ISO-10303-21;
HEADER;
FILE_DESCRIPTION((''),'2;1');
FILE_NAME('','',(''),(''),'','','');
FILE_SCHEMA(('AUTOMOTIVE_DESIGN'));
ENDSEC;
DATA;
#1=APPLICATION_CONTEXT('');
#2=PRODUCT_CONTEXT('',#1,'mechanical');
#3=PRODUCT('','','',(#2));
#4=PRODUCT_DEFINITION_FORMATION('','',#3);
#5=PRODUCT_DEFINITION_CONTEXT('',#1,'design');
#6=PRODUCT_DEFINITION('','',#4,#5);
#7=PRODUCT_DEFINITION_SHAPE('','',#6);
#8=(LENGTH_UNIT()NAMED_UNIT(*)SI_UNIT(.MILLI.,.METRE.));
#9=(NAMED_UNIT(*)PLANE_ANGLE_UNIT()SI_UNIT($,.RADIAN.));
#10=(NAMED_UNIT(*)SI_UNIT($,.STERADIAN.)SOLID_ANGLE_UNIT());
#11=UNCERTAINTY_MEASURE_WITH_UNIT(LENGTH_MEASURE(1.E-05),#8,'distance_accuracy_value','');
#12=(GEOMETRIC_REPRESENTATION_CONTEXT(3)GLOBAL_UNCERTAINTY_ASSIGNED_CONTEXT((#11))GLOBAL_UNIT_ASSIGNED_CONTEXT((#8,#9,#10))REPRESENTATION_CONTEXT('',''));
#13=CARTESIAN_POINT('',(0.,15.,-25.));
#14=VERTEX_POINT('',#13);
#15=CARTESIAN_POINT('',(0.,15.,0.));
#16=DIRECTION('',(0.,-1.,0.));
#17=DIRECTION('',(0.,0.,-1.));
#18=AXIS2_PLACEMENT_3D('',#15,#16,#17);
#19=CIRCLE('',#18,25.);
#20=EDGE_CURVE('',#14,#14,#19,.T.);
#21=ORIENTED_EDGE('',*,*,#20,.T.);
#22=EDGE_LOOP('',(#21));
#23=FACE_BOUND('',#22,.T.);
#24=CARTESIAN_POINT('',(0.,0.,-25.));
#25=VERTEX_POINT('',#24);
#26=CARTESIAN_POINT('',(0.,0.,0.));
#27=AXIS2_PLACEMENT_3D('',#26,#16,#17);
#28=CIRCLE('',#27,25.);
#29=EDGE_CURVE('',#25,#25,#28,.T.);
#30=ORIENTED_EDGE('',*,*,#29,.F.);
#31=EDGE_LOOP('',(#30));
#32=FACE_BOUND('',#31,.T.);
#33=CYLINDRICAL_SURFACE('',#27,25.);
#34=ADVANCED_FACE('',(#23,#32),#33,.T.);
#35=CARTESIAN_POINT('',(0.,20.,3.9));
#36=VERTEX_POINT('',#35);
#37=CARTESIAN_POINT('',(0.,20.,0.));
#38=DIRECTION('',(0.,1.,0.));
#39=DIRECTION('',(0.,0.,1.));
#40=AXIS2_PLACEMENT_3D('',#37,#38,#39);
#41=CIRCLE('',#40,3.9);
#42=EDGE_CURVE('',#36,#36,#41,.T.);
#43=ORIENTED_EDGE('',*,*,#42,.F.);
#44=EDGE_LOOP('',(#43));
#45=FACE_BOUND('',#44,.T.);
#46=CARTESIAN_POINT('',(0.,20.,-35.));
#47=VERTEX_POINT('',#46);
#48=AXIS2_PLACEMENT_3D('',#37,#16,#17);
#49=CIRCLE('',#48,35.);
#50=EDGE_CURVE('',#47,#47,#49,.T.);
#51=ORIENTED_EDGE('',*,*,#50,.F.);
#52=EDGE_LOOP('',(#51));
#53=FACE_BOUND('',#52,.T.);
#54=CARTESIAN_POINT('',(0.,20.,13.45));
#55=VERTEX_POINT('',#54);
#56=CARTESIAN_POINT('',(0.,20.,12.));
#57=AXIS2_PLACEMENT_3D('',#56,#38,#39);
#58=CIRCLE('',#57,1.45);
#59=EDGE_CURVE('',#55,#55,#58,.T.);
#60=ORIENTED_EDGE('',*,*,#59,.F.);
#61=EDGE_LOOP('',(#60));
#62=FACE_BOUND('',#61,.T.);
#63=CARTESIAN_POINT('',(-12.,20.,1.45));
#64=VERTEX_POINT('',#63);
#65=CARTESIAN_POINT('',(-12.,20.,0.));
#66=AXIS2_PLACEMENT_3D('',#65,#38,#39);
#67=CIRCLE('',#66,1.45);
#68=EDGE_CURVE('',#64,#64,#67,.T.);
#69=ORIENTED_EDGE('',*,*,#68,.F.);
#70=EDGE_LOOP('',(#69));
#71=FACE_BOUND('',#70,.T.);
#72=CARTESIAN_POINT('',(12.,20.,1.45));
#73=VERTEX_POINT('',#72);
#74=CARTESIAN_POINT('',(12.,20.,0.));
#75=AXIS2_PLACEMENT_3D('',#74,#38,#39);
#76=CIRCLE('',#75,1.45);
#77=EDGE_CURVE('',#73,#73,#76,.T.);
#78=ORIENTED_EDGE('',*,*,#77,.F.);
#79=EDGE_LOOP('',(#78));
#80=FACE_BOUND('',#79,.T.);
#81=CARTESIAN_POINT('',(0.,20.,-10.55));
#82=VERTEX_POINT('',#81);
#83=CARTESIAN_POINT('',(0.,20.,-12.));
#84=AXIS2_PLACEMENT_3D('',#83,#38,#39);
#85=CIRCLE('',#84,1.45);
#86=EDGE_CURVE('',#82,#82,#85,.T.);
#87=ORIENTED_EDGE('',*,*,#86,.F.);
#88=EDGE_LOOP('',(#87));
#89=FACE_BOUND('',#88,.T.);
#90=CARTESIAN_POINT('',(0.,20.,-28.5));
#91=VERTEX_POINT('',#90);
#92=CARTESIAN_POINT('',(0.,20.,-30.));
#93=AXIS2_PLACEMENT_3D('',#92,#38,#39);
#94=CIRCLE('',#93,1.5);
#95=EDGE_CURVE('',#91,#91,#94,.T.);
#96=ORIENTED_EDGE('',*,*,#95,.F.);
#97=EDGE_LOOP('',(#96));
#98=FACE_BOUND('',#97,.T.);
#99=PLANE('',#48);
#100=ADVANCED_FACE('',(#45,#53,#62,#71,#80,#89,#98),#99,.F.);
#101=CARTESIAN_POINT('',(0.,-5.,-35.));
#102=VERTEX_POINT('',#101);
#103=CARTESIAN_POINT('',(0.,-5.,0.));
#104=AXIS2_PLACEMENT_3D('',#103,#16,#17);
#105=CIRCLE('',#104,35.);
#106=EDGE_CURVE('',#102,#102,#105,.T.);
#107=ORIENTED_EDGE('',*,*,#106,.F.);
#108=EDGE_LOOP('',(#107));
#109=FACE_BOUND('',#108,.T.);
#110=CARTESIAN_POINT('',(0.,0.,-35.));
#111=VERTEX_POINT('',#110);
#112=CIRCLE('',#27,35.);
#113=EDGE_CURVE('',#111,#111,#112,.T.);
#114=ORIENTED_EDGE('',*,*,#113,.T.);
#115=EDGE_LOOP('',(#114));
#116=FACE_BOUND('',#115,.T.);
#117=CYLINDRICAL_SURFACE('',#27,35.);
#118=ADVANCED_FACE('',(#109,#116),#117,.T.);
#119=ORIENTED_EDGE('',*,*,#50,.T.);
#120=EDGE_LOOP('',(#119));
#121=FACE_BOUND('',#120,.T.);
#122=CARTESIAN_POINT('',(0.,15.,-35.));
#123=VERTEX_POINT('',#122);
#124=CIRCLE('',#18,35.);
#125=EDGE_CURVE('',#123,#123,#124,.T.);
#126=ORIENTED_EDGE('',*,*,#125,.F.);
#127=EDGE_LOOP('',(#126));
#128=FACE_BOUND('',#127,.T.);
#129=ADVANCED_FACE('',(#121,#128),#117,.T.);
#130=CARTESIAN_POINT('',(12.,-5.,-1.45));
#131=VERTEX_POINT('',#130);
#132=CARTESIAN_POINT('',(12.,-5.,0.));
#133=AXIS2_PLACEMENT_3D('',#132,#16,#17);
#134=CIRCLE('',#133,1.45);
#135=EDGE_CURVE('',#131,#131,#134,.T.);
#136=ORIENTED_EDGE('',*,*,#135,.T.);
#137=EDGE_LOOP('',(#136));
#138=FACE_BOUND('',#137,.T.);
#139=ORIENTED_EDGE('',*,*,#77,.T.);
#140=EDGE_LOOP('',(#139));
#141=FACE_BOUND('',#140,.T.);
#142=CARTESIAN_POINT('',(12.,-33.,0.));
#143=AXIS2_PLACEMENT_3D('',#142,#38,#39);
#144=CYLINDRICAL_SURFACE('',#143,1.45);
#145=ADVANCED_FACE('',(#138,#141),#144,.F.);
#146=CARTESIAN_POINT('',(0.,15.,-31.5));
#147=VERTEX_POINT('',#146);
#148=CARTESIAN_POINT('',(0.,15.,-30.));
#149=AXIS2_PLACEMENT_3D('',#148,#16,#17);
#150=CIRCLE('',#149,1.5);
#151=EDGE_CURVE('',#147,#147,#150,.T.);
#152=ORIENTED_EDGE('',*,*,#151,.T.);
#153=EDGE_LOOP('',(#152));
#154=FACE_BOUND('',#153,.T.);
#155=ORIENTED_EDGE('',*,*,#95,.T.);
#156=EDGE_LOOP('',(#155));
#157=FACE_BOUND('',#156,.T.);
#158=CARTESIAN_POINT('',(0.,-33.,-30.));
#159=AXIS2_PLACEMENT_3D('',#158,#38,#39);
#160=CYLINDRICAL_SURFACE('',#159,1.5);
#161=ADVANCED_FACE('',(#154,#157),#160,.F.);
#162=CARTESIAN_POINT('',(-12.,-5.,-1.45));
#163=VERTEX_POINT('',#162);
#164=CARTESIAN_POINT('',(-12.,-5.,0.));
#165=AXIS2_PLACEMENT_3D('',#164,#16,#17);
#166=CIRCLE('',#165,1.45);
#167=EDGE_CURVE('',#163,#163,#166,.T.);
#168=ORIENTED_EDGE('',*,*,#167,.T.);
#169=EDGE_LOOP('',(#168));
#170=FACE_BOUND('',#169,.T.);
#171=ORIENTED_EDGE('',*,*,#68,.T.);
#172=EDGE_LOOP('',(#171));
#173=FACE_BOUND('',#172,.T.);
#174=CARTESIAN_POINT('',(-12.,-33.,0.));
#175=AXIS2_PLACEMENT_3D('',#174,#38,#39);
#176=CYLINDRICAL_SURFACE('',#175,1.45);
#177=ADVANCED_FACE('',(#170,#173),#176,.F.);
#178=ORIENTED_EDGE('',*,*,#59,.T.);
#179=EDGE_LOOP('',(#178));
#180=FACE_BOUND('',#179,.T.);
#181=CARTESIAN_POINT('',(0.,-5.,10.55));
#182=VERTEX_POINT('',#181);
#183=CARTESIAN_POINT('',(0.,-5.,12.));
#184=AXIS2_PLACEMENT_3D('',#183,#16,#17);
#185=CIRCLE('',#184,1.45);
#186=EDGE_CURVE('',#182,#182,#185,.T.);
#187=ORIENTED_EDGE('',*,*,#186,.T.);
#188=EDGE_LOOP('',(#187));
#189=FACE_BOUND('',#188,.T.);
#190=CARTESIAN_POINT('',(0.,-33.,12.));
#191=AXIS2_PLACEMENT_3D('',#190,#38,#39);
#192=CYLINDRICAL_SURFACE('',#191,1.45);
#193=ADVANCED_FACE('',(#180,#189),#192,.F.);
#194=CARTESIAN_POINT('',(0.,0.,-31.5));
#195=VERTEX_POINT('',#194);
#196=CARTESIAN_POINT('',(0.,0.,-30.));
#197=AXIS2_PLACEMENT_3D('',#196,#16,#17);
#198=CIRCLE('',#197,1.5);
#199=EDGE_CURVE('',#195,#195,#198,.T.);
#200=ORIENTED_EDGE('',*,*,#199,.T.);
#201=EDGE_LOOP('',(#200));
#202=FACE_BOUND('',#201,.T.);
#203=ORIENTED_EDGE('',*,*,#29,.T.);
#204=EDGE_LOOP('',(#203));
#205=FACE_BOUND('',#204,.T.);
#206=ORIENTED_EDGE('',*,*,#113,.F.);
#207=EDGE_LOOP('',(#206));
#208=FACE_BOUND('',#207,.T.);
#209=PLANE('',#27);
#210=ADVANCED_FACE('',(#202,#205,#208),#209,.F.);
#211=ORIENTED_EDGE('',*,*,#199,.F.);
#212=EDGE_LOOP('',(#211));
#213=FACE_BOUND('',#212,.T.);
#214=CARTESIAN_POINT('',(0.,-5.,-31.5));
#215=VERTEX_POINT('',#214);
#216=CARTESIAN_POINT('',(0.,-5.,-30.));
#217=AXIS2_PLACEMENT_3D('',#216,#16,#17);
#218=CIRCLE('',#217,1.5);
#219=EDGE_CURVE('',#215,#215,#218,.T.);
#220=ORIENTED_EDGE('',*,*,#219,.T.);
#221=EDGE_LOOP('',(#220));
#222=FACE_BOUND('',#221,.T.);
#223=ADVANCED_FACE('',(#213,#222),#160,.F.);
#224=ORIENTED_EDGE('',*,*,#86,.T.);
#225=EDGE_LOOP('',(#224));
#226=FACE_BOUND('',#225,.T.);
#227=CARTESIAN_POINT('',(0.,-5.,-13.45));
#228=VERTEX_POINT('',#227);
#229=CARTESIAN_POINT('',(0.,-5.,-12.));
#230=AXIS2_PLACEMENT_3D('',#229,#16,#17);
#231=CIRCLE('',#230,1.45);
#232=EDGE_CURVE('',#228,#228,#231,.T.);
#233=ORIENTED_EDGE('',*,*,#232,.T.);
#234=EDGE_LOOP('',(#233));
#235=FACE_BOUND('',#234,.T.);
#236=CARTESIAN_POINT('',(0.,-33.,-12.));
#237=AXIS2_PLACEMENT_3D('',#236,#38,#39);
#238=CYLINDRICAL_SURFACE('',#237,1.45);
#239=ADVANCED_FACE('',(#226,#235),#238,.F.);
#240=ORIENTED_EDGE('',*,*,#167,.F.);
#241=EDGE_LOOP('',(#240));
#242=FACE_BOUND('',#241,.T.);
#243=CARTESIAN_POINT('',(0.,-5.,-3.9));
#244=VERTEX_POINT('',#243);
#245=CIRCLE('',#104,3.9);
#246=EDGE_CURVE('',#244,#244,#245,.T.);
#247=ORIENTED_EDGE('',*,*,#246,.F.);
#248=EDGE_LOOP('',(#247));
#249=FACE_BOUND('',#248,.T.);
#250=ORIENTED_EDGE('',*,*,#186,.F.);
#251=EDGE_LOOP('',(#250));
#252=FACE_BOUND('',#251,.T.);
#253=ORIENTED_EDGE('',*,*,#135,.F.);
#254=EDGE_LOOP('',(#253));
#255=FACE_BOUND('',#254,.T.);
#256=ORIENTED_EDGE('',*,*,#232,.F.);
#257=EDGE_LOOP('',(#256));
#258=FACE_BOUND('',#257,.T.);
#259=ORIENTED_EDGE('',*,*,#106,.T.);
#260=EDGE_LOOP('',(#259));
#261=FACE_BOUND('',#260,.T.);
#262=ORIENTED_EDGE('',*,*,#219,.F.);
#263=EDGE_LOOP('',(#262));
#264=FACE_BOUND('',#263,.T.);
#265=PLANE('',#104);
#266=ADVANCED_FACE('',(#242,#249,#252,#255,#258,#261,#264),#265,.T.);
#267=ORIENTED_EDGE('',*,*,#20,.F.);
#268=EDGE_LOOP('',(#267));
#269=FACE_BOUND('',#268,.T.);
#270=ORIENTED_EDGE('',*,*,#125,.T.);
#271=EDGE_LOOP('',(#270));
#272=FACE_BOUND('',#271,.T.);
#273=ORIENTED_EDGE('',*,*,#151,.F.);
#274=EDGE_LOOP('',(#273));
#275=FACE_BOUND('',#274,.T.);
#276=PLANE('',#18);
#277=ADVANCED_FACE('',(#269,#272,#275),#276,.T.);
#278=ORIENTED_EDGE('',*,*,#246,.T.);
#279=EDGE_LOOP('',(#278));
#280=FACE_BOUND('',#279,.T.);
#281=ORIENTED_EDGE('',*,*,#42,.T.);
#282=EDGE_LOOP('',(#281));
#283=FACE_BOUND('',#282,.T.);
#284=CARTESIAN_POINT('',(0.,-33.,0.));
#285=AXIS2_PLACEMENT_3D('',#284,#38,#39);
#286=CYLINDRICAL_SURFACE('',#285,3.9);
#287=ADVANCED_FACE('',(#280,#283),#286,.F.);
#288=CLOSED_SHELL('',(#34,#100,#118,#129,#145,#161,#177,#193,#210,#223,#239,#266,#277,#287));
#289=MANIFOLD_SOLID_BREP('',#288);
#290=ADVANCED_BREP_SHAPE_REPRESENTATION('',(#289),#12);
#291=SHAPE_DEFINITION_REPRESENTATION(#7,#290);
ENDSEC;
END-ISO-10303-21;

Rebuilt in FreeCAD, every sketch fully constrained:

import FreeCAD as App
import Part
import Sketcher

V = App.Vector


def add_polygon(sketch, points):
    """Adds a closed chain of lines whose ends are joined by coincident constraints."""
    first, n = sketch.GeometryCount, len(points)
    for a, b in zip(points, points[1:] + points[:1]):
        sketch.addGeometry(Part.LineSegment(App.Vector(*a, 0), App.Vector(*b, 0)), False)
    for i in range(n):
        sketch.addConstraint(Sketcher.Constraint("Coincident", first + i, 2, first + (i + 1) % n, 1))

doc = App.newDocument("Part")
params = doc.addObject("Spreadsheet::Sheet", "Params")
for row, (alias, value) in enumerate([
    ("sketch1_width", "25 mm"),
    ("sketch1_width2", "5 mm"),
    ("sketch1_height", "35 mm"),
    ("sketch1_height2", "10 mm"),
    ("revolution_angle", "360 deg"),
    ("sketch2_diameter", "7.8 mm"),
    ("sketch2_diameter2", "2.9 mm"),
    ("pocket1_length", "53 mm"),
    ("sketch3_diameter", "3 mm"),
    ("pocket2_length", "53 mm"),
], start=1):
    params.set(f"A{row}", alias)
    params.set(f"B{row}", "=" + value)
    params.setAlias(f"B{row}", alias)

body = doc.addObject("PartDesign::Body", "Body")

# Sketch on YZ plane
sketch1 = doc.addObject("Sketcher::SketchObject", "Sketch")
body.addObject(sketch1)
sketch1.AttachmentSupport = (doc.YZ_Plane, [""])
sketch1.MapMode = "FlatFace"
add_polygon(sketch1, [(20, 0), (-5, 0), (-5, -35), (0, -35), (0, -25), (15, -25), (15, -35), (20, -35)])  # lines 0-7
sketch1.addConstraint([
    Sketcher.Constraint("Horizontal", 0),
    Sketcher.Constraint("Vertical", 1),
    Sketcher.Constraint("Horizontal", 2),
    Sketcher.Constraint("Vertical", 3),
    Sketcher.Constraint("Horizontal", 4),
    Sketcher.Constraint("Vertical", 5),
    Sketcher.Constraint("Horizontal", 6),
    Sketcher.Constraint("Vertical", 7),
    Sketcher.Constraint("PointOnObject", 0, 2, -1),
    Sketcher.Constraint("PointOnObject", 2, 2, -2),
    Sketcher.Constraint("Horizontal", 2, 2, 5, 2),
    Sketcher.Constraint("Equal", 2, 6),
    Sketcher.Constraint("DistanceX", 0, 2, 0, 1, 25.0),
    Sketcher.Constraint("DistanceX", 2, 1, 2, 2, 5.0),
    Sketcher.Constraint("DistanceY", 1, 2, 1, 1, 35.0),
    Sketcher.Constraint("DistanceY", 3, 1, 3, 2, 10.0),
])
sketch1.setExpression("Constraints[20]", "Params.sketch1_width")
sketch1.setExpression("Constraints[21]", "Params.sketch1_width2")
sketch1.setExpression("Constraints[22]", "Params.sketch1_height")
sketch1.setExpression("Constraints[23]", "Params.sketch1_height2")
revolution = doc.addObject("PartDesign::Revolution", "Revolution")
body.addObject(revolution)
revolution.Profile = sketch1
revolution.ReferenceAxis = (sketch1, ["H_Axis"])
revolution.setExpression("Angle", "Params.revolution_angle")

# Sketch on XZ plane
sketch2 = doc.addObject("Sketcher::SketchObject", "Sketch001")
body.addObject(sketch2)
sketch2.AttachmentSupport = (doc.XZ_Plane, [""])
sketch2.MapMode = "FlatFace"
sketch2.AttachmentOffset = App.Placement(V(0, 0, -20), App.Rotation())
sketch2.addGeometry([
    Part.Circle(V(0, 0, 0), V(0, 0, 1), 3.9),  # 0
    Part.Circle(V(0, -12, 0), V(0, 0, 1), 1.4),  # 1
    Part.Circle(V(12, 0, 0), V(0, 0, 1), 1.4),  # 2
    Part.Circle(V(0, 12, 0), V(0, 0, 1), 1.4),  # 3
    Part.Circle(V(-12, 0, 0), V(0, 0, 1), 1.4),  # 4
], False)
sketch2.addConstraint([
    Sketcher.Constraint("Coincident", 0, 3, -1, 1),
    Sketcher.Constraint("Equal", 1, 2),
    Sketcher.Constraint("Equal", 2, 3),
    Sketcher.Constraint("Equal", 3, 4),
    Sketcher.Constraint("Symmetric", 1, 3, 3, 3, -1, 1),
    Sketcher.Constraint("Symmetric", 2, 3, 4, 3, -1, 1),
    Sketcher.Constraint("PointOnObject", 1, 3, -2),
    Sketcher.Constraint("PointOnObject", 2, 3, -1),
    Sketcher.Constraint("Diameter", 0, 7.8),
    Sketcher.Constraint("Diameter", 1, 2.9),
    Sketcher.Constraint("DistanceY", 1, 3, -1, 1, 12.0),
    Sketcher.Constraint("DistanceX", -1, 1, 2, 3, 12.0),
])
sketch2.setExpression("Constraints[8]", "Params.sketch2_diameter")
sketch2.setExpression("Constraints[9]", "Params.sketch2_diameter2")
pocket1 = doc.addObject("PartDesign::Pocket", "Pocket")
body.addObject(pocket1)
pocket1.Profile = sketch2
pocket1.setExpression("Length", "Params.pocket1_length")
pocket1.Reversed = True

# Sketch on XZ plane
sketch3 = doc.addObject("Sketcher::SketchObject", "Sketch002")
body.addObject(sketch3)
sketch3.AttachmentSupport = (doc.XZ_Plane, [""])
sketch3.MapMode = "FlatFace"
sketch3.AttachmentOffset = App.Placement(V(0, 0, -20), App.Rotation())
sketch3.addGeometry(Part.Circle(V(0, -30, 0), V(0, 0, 1), 1.5), False)
sketch3.addConstraint([
    Sketcher.Constraint("PointOnObject", 0, 3, -2),
    Sketcher.Constraint("Diameter", 0, 3.0),
    Sketcher.Constraint("DistanceY", 0, 3, -1, 1, 30.0),
])
sketch3.setExpression("Constraints[1]", "Params.sketch3_diameter")
pocket2 = doc.addObject("PartDesign::Pocket", "Pocket001")
body.addObject(pocket2)
pocket2.Profile = sketch3
pocket2.setExpression("Length", "Params.pocket2_length")
pocket2.Reversed = True

doc.recompute()
